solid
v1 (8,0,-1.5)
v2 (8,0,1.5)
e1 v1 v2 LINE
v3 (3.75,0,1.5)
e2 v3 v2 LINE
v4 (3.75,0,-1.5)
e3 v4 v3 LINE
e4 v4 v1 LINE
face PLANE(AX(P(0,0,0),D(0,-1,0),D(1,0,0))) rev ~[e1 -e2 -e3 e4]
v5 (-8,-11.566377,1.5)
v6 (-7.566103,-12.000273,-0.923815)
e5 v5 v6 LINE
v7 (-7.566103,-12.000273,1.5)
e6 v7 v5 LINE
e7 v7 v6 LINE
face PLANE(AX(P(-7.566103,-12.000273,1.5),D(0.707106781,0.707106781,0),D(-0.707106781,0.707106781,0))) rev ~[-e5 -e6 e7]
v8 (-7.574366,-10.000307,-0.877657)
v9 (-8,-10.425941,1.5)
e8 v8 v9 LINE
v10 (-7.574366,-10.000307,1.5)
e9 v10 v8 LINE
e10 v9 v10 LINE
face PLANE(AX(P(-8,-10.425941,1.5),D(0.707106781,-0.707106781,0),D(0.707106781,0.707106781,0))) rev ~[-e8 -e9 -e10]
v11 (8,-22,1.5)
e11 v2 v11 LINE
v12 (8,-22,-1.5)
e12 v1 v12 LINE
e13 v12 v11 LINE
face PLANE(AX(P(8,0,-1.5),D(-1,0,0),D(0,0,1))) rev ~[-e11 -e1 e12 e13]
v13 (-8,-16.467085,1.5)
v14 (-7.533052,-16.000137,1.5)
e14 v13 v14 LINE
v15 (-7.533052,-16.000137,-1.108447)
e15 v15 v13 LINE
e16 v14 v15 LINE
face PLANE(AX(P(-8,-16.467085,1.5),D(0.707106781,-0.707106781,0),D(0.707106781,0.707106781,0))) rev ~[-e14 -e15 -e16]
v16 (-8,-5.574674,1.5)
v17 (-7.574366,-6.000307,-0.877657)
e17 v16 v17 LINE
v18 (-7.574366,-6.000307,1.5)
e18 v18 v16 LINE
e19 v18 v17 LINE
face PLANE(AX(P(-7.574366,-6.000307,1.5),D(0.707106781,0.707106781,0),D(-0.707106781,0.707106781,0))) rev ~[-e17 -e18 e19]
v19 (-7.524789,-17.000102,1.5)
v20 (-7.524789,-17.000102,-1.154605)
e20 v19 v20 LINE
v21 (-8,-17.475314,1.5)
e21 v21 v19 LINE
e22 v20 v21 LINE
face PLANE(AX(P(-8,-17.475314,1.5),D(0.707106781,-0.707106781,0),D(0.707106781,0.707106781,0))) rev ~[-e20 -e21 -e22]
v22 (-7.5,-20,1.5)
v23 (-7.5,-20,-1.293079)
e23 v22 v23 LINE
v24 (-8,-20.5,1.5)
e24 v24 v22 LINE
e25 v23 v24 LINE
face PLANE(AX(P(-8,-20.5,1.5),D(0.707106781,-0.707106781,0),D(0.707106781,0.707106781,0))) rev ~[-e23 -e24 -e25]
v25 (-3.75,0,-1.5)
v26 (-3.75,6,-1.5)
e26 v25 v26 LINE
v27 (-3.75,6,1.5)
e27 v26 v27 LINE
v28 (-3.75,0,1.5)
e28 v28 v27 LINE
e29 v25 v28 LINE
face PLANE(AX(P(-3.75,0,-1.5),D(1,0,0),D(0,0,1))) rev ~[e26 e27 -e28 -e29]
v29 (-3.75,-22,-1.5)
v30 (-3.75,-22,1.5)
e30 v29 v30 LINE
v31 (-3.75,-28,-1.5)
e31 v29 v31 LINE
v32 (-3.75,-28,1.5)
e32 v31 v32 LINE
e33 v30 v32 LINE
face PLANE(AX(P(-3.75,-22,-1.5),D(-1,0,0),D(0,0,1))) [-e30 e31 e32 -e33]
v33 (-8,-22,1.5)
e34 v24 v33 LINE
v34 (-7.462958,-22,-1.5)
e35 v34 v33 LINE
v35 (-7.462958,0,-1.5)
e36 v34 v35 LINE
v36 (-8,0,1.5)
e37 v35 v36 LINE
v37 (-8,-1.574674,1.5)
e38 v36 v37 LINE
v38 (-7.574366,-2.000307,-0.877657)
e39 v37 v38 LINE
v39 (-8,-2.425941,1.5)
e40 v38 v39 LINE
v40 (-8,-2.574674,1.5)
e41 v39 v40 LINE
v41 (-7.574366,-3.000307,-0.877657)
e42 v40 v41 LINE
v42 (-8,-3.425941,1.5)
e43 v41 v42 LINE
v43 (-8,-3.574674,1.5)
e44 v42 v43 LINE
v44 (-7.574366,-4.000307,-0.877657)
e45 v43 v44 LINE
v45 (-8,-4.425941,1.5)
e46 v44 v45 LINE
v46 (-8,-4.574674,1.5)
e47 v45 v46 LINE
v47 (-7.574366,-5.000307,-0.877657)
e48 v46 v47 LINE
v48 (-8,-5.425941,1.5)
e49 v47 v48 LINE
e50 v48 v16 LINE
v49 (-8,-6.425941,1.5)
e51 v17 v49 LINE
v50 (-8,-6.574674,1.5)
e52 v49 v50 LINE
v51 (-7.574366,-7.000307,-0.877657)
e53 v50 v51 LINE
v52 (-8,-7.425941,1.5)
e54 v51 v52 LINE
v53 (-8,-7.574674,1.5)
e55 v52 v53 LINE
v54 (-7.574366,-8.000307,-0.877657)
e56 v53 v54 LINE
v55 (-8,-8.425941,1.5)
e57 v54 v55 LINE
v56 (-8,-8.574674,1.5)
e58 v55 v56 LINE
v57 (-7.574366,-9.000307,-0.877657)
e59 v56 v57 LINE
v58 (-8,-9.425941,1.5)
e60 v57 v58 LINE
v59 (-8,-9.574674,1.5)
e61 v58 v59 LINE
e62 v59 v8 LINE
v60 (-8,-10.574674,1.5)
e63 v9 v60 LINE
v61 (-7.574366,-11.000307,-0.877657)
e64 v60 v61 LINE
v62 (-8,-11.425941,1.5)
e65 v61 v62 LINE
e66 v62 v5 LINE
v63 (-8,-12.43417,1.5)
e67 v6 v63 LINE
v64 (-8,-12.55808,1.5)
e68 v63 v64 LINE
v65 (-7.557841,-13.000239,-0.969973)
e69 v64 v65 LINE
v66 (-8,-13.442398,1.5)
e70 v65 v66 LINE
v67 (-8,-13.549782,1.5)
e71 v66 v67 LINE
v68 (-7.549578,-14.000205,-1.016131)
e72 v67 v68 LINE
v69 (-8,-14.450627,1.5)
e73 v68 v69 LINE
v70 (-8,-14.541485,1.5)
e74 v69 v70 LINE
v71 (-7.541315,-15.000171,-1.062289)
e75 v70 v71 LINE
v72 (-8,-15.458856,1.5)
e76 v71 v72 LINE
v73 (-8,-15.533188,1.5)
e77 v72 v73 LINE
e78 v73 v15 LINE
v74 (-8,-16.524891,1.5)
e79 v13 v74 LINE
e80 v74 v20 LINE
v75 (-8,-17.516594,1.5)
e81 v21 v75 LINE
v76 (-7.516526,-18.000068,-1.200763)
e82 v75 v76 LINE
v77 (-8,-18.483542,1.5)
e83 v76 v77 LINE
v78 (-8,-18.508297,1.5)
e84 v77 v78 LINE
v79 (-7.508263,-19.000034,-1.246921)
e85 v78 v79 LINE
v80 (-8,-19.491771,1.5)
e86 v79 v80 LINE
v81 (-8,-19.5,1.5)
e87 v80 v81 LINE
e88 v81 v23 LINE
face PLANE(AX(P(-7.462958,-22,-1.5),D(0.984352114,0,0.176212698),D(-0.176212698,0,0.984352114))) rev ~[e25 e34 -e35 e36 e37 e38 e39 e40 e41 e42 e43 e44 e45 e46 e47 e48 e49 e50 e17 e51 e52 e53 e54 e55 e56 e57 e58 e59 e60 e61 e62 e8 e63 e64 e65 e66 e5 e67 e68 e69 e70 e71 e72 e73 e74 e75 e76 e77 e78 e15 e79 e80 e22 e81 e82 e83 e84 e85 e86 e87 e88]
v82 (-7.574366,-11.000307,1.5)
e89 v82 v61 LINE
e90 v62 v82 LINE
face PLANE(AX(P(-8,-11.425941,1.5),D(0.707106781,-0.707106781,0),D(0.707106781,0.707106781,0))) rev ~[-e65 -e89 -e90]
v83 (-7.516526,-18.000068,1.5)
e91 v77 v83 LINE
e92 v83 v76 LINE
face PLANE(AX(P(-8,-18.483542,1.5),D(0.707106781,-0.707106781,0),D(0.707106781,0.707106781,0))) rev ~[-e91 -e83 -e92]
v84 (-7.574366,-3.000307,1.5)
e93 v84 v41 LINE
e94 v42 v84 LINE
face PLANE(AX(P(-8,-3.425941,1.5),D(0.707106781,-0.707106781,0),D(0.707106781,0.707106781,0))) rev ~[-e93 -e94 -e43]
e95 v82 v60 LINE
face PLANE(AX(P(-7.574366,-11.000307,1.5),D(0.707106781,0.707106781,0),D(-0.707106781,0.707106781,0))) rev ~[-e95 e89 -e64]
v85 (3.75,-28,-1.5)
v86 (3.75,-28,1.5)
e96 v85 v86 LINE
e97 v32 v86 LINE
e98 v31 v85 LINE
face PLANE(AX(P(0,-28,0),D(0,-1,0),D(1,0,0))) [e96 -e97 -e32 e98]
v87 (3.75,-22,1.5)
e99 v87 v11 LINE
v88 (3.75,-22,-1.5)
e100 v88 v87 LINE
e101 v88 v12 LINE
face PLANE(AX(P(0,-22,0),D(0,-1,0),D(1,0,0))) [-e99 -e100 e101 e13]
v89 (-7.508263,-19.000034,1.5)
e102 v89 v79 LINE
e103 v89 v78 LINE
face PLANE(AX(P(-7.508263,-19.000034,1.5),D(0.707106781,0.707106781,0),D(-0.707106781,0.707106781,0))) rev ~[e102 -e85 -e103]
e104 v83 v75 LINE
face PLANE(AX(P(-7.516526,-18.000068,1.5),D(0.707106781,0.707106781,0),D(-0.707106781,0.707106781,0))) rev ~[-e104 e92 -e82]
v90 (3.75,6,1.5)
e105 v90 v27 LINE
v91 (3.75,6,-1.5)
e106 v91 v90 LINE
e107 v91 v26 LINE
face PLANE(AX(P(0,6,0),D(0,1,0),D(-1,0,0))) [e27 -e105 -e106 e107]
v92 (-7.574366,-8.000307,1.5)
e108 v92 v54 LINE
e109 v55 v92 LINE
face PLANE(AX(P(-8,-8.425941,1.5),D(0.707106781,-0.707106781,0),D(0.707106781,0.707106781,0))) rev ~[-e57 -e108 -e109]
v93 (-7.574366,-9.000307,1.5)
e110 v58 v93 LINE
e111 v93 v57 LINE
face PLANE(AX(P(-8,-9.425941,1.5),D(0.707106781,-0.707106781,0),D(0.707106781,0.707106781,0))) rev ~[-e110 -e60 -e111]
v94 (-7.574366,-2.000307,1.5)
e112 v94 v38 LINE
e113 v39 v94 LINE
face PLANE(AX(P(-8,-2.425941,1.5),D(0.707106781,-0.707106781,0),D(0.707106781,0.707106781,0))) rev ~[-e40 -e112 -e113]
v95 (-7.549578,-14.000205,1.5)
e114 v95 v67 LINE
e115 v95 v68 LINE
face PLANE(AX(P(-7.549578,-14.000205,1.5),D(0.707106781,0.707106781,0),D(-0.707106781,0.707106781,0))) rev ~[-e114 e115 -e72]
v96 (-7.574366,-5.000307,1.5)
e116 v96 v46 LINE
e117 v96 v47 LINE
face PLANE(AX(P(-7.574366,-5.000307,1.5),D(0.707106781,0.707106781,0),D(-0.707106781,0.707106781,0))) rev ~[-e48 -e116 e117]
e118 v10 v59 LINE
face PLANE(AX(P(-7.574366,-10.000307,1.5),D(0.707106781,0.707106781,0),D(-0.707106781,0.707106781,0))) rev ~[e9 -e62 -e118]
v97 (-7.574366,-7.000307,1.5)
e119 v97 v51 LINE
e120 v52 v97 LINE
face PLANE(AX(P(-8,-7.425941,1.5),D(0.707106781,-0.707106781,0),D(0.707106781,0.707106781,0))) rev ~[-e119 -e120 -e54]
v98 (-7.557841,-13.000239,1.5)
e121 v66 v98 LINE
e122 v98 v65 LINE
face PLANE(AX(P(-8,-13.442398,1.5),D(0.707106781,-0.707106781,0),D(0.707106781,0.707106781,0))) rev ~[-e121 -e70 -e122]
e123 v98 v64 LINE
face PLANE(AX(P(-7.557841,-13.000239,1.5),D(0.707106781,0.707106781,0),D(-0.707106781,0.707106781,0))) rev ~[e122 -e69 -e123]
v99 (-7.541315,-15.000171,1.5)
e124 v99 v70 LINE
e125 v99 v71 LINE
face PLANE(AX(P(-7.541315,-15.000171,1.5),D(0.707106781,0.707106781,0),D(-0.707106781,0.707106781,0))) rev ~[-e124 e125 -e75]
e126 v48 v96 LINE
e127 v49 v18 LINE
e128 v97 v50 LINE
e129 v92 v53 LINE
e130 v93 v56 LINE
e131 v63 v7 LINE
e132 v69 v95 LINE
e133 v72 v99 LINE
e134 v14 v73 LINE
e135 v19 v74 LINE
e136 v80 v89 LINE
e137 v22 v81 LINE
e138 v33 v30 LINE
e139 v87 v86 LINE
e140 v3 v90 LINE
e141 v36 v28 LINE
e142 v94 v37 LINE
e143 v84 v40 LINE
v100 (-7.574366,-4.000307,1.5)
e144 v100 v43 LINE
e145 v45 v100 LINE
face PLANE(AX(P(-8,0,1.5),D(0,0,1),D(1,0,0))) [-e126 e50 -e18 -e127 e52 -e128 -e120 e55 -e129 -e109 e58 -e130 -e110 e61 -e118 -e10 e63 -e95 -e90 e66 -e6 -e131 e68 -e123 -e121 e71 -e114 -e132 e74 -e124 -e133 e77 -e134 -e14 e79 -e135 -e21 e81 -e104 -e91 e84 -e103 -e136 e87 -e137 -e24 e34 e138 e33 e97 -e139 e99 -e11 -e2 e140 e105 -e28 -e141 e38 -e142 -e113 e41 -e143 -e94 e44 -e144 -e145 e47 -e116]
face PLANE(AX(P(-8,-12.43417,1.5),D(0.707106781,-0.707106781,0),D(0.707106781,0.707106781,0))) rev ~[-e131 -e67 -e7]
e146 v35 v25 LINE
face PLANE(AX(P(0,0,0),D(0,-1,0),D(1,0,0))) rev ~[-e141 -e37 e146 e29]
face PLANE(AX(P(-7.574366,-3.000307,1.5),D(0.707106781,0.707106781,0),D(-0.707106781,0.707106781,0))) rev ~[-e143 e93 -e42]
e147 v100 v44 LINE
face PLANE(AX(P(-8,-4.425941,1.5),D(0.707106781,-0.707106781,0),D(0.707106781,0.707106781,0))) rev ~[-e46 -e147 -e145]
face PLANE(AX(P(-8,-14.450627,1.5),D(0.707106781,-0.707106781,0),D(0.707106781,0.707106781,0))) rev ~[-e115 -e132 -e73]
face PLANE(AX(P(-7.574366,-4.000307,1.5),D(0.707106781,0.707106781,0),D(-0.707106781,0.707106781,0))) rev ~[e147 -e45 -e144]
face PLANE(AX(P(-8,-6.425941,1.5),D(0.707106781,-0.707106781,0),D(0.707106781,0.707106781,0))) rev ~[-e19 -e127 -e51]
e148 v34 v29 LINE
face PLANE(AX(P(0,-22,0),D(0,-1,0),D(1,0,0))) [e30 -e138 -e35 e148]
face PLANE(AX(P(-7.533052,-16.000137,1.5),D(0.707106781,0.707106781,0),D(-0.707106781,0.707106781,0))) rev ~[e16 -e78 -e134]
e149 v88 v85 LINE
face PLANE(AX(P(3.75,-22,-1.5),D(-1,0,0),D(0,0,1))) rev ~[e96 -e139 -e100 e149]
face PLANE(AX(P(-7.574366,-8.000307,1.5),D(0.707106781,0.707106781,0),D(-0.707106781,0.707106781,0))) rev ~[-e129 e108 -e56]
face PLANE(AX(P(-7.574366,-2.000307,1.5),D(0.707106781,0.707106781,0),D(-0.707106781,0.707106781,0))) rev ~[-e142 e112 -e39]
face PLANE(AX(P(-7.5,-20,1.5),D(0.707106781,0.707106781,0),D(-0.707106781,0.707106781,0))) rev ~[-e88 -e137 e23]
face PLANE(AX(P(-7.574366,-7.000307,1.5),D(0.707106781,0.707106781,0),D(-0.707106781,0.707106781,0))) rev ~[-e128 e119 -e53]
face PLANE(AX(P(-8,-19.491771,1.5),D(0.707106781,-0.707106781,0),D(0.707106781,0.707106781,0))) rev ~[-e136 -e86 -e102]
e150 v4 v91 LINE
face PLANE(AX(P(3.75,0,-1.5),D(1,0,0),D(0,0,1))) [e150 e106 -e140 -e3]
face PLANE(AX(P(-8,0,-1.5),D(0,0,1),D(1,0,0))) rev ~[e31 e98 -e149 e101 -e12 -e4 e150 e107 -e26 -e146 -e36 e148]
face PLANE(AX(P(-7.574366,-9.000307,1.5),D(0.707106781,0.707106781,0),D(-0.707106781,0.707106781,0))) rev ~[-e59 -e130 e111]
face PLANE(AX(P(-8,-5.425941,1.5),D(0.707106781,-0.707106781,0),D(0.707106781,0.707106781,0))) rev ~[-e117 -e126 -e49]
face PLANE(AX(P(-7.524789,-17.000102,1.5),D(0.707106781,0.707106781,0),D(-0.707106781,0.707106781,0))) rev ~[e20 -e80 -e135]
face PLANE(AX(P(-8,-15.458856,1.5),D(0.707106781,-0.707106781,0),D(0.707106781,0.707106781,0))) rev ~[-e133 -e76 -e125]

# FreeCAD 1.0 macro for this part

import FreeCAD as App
import Part
import Sketcher
from FreeCAD import Vector
Q = App.Units.Quantity


def add_polygon(sketch, points):
    """Adds a closed chain of lines whose ends are joined by coincident constraints."""
    first, n = sketch.GeometryCount, len(points)
    for a, b in zip(points, points[1:] + points[:1]):
        sketch.addGeometry(Part.LineSegment(App.Vector(*a, 0), App.Vector(*b, 0)), False)
    for i in range(n):
        sketch.addConstraint(Sketcher.Constraint("Coincident", first + i, 2, first + (i + 1) % n, 1))

doc = App.newDocument("Part")
body = doc.addObject("PartDesign::Body", "Body")

sketch1 = doc.addObject("Sketcher::SketchObject", "Sketch")
body.addObject(sketch1)
sketch1.AttachmentSupport = (doc.XZ_Plane, [""])
sketch1.MapMode = "FlatFace"
add_polygon(sketch1, [(-8, 1.5), (-8, -1.5), (8, -1.5), (8, 1.5)])
sketch1.addConstraint([
    Sketcher.Constraint("Vertical", 0),
    Sketcher.Constraint("Horizontal", 1),
    Sketcher.Constraint("Vertical", 2),
    Sketcher.Constraint("Horizontal", 3),
    Sketcher.Constraint("Symmetric", 0, 2, 2, 2, -1, 1),
    Sketcher.Constraint("DistanceX", 1, 1, 1, 2, Q("16 mm")),
    Sketcher.Constraint("DistanceY", 0, 2, 0, 1, Q("3 mm")),
])
pad1 = doc.addObject("PartDesign::Pad", "Pad")
body.addObject(pad1)
pad1.Profile = sketch1
pad1.Length = 22

sketch2 = doc.addObject("Sketcher::SketchObject", "Sketch001")
body.addObject(sketch2)
sketch2.AttachmentSupport = (doc.XZ_Plane, [""])
sketch2.MapMode = "FlatFace"
sketch2.AttachmentOffset = App.Placement(Vector(0, 0, 22), App.Rotation())
add_polygon(sketch2, [(-3.8, 1.5), (-3.8, -1.5), (3.8, -1.5), (3.8, 1.5)])
sketch2.addConstraint([
    Sketcher.Constraint("Vertical", 0),
    Sketcher.Constraint("Horizontal", 1),
    Sketcher.Constraint("Vertical", 2),
    Sketcher.Constraint("Horizontal", 3),
    Sketcher.Constraint("Symmetric", 0, 2, 2, 2, -1, 1),
    Sketcher.Constraint("DistanceY", 0, 2, 0, 1, Q("3 mm")),
    Sketcher.Constraint("DistanceX", 1, 1, 1, 2, Q("7.5 mm")),
])
pad2 = doc.addObject("PartDesign::Pad", "Pad001")
body.addObject(pad2)
pad2.Profile = sketch2
pad2.Length = 6

sketch3 = doc.addObject("Sketcher::SketchObject", "Sketch002")
body.addObject(sketch3)
sketch3.AttachmentSupport = (doc.XZ_Plane, [""])
sketch3.MapMode = "FlatFace"
add_polygon(sketch3, [(3.8, 1.5), (3.8, -1.5), (-3.8, -1.5), (-3.8, 1.5)])
sketch3.addConstraint([
    Sketcher.Constraint("Vertical", 0),
    Sketcher.Constraint("Horizontal", 1),
    Sketcher.Constraint("Vertical", 2),
    Sketcher.Constraint("Horizontal", 3),
    Sketcher.Constraint("Symmetric", 0, 2, 2, 2, -1, 1),
    Sketcher.Constraint("DistanceY", 0, 2, 0, 1, Q("3 mm")),
    Sketcher.Constraint("DistanceX", 1, 2, 1, 1, Q("7.5 mm")),
])
pad3 = doc.addObject("PartDesign::Pad", "Pad002")
body.addObject(pad3)
pad3.Profile = sketch3
pad3.Length = 6
pad3.Reversed = True

sketch4 = doc.addObject("Sketcher::SketchObject", "Sketch003")
body.addObject(sketch4)
sketch4.AttachmentSupport = (doc.XY_Plane, [""])
sketch4.MapMode = "FlatFace"
sketch4.AttachmentOffset = App.Placement(Vector(0, 0, 1.5), App.Rotation())
add_polygon(sketch4, [(-8, -1.6), (-8, -2.4), (-7.6, -2)])
add_polygon(sketch4, [(-8, -2.6), (-8, -3.4), (-7.6, -3)])
add_polygon(sketch4, [(-8, -3.6), (-8, -4.4), (-7.6, -4)])
add_polygon(sketch4, [(-8, -4.6), (-8, -5.4), (-7.6, -5)])
add_polygon(sketch4, [(-8, -5.6), (-8, -6.4), (-7.6, -6)])
add_polygon(sketch4, [(-8, -6.6), (-8, -7.4), (-7.6, -7)])
add_polygon(sketch4, [(-8, -7.6), (-8, -8.4), (-7.6, -8)])
add_polygon(sketch4, [(-8, -8.6), (-8, -9.4), (-7.6, -9)])
add_polygon(sketch4, [(-8, -9.6), (-8, -10.4), (-7.6, -10)])
add_polygon(sketch4, [(-7.6, -11), (-8, -10.6), (-8, -11.4)])
add_polygon(sketch4, [(-7.6, -12), (-8, -11.6), (-8, -12.4)])
add_polygon(sketch4, [(-7.6, -13), (-8, -12.6), (-8, -13.4)])
add_polygon(sketch4, [(-7.5, -14), (-8, -13.5), (-8, -14.5)])
add_polygon(sketch4, [(-7.5, -15), (-8, -14.5), (-8, -15.5)])
add_polygon(sketch4, [(-7.5, -20), (-8, -19.5), (-8, -20.5)])
add_polygon(sketch4, [(-7.5, -19), (-8, -18.5), (-8, -19.5)])
add_polygon(sketch4, [(-7.5, -18), (-8, -17.5), (-8, -18.5)])
add_polygon(sketch4, [(-7.5, -17), (-8, -16.5), (-8, -17.5)])
add_polygon(sketch4, [(-7.5, -16), (-8, -15.5), (-8, -16.5)])
sketch4.addConstraint([
    Sketcher.Constraint("Vertical", 0),
    Sketcher.Constraint("Vertical", 3),
    Sketcher.Constraint("Vertical", 6),
    Sketcher.Constraint("Vertical", 9),
    Sketcher.Constraint("Vertical", 12),
    Sketcher.Constraint("Vertical", 15),
    Sketcher.Constraint("Vertical", 18),
    Sketcher.Constraint("Vertical", 21),
    Sketcher.Constraint("Vertical", 24),
    Sketcher.Constraint("Vertical", 28),
    Sketcher.Constraint("Vertical", 31),
    Sketcher.Constraint("Vertical", 34),
    Sketcher.Constraint("Vertical", 37),
    Sketcher.Constraint("Vertical", 40),
    Sketcher.Constraint("Vertical", 43),
    Sketcher.Constraint("Vertical", 46),
    Sketcher.Constraint("Vertical", 49),
    Sketcher.Constraint("Vertical", 52),
    Sketcher.Constraint("Vertical", 55),
    Sketcher.Constraint("Perpendicular", 1, 2),
    Sketcher.Constraint("Perpendicular", 2, 4),
    Sketcher.Constraint("Perpendicular", 4, 5),
    Sketcher.Constraint("Perpendicular", 5, 7),
    Sketcher.Constraint("Perpendicular", 7, 8),
    Sketcher.Constraint("Perpendicular", 8, 10),
    Sketcher.Constraint("Perpendicular", 10, 11),
    Sketcher.Constraint("Perpendicular", 11, 13),
    Sketcher.Constraint("Perpendicular", 13, 14),
    Sketcher.Constraint("Perpendicular", 14, 16),
    Sketcher.Constraint("Perpendicular", 16, 17),
    Sketcher.Constraint("Perpendicular", 17, 19),
    Sketcher.Constraint("Perpendicular", 19, 20),
    Sketcher.Constraint("Perpendicular", 20, 22),
    Sketcher.Constraint("Perpendicular", 22, 23),
    Sketcher.Constraint("Perpendicular", 23, 25),
    Sketcher.Constraint("Perpendicular", 25, 26),
    Sketcher.Constraint("Parallel", 26, 27),
    Sketcher.Constraint("Perpendicular", 27, 29),
    Sketcher.Constraint("Perpendicular", 29, 30),
    Sketcher.Constraint("Perpendicular", 30, 32),
    Sketcher.Constraint("Perpendicular", 32, 33),
    Sketcher.Constraint("Perpendicular", 33, 35),
    Sketcher.Constraint("Perpendicular", 35, 36),
    Sketcher.Constraint("Perpendicular", 36, 38),
    Sketcher.Constraint("Perpendicular", 38, 39),
    Sketcher.Constraint("Perpendicular", 39, 41),
    Sketcher.Constraint("Perpendicular", 41, 42),
    Sketcher.Constraint("Perpendicular", 42, 44),
    Sketcher.Constraint("Perpendicular", 44, 45),
    Sketcher.Constraint("Perpendicular", 45, 47),
    Sketcher.Constraint("Perpendicular", 47, 48),
    Sketcher.Constraint("Perpendicular", 48, 50),
    Sketcher.Constraint("Perpendicular", 50, 51),
    Sketcher.Constraint("Perpendicular", 51, 53),
    Sketcher.Constraint("Perpendicular", 53, 54),
    Sketcher.Constraint("Perpendicular", 54, 56),
    Sketcher.Constraint("Vertical", 2, 2, 3, 2),
    Sketcher.Constraint("Vertical", 1, 2, 4, 2),
    Sketcher.Constraint("Vertical", 5, 2, 6, 2),
    Sketcher.Constraint("Vertical", 4, 2, 7, 2),
    Sketcher.Constraint("Vertical", 8, 2, 9, 2),
    Sketcher.Constraint("Vertical", 7, 2, 10, 2),
    Sketcher.Constraint("Vertical", 11, 2, 12, 2),
    Sketcher.Constraint("Vertical", 10, 2, 13, 2),
    Sketcher.Constraint("Vertical", 14, 2, 15, 2),
    Sketcher.Constraint("Vertical", 13, 2, 16, 2),
    Sketcher.Constraint("Vertical", 17, 2, 18, 2),
    Sketcher.Constraint("Vertical", 16, 2, 19, 2),
    Sketcher.Constraint("Vertical", 20, 2, 21, 2),
    Sketcher.Constraint("Vertical", 19, 2, 22, 2),
    Sketcher.Constraint("Vertical", 23, 2, 24, 2),
    Sketcher.Constraint("Vertical", 22, 2, 25, 2),
    Sketcher.Constraint("Vertical", 26, 2, 27, 2),
    Sketcher.Constraint("Vertical", 25, 2, 29, 2),
    Sketcher.Constraint("Vertical", 28, 2, 30, 2),
    Sketcher.Constraint("Vertical", 31, 2, 33, 2),
    Sketcher.Constraint("Vertical", 34, 2, 36, 2),
    Sketcher.Constraint("Vertical", 37, 2, 39, 2),
    Sketcher.Constraint("Vertical", 40, 2, 42, 2),
    Sketcher.Constraint("Vertical", 43, 2, 45, 2),
    Sketcher.Constraint("Vertical", 46, 2, 48, 2),
    Sketcher.Constraint("Vertical", 49, 2, 51, 2),
    Sketcher.Constraint("Vertical", 52, 2, 54, 2),
    Sketcher.Constraint("Equal", 1, 2),
    Sketcher.Constraint("DistanceY", 43, 2, 43, 1, Q("1 mm")),
    Sketcher.Constraint("DistanceX", 0, 2, -1, 1, Q("8 mm")),
    Sketcher.Constraint("DistanceY", 44, 2, -1, 1, Q("20 mm")),
    Sketcher.Constraint("DistanceY", 3, 2, 0, 2, Q("1 mm")),
    Sketcher.Constraint("DistanceY", 6, 2, 3, 2, Q("1 mm")),
    Sketcher.Constraint("DistanceY", 9, 2, 6, 2, Q("1 mm")),
    Sketcher.Constraint("DistanceY", 12, 2, 9, 2, Q("1 mm")),
    Sketcher.Constraint("DistanceY", 15, 2, 12, 2, Q("1 mm")),
    Sketcher.Constraint("DistanceY", 18, 2, 15, 2, Q("1 mm")),
    Sketcher.Constraint("DistanceY", 21, 2, 18, 2, Q("1 mm")),
    Sketcher.Constraint("DistanceY", 24, 2, 21, 2, Q("1 mm")),
    Sketcher.Constraint("DistanceY", 27, 2, 26, 2, Q("1 mm")),
    Sketcher.Constraint("DistanceY", 34, 2, 34, 1, Q("0.884319 mm")),
    Sketcher.Constraint("DistanceY", 40, 2, 40, 1, Q("0.917371 mm")),
    Sketcher.Constraint("DistanceY", 49, 2, 49, 1, Q("0.966948 mm")),
    Sketcher.Constraint("DistanceY", 34, 2, -1, 1, Q("13.442398 mm")),
    Sketcher.Constraint("DistanceY", 32, 2, 27, 2, Q("1.425599 mm")),
    Sketcher.Constraint("Distance", 45, Q("0.695421 mm")),
    Sketcher.Constraint("Distance", 51, Q("0.67205 mm")),
    Sketcher.Constraint("DistanceY", 0, 2, 0, 1, Q("0.851267 mm")),
    Sketcher.Constraint("DistanceY", 31, 2, 31, 1, Q("0.867793 mm")),
    Sketcher.Constraint("DistanceY", 37, 2, 37, 1, Q("0.900845 mm")),
    Sketcher.Constraint("DistanceY", 55, 2, 55, 1, Q("0.933897 mm")),
    Sketcher.Constraint("DistanceY", 0, 2, -1, 1, Q("2.425941 mm")),
    Sketcher.Constraint("DistanceY", 41, 2, -1, 1, Q("15.000171 mm")),
    Sketcher.Constraint("DistanceY", 46, 2, -1, 1, Q("19.491771 mm")),
    Sketcher.Constraint("DistanceY", 50, 2, -1, 1, Q("18.000068 mm")),
    Sketcher.Constraint("DistanceY", 51, 2, -1, 1, Q("16.524891 mm")),
    Sketcher.Constraint("DistanceY", 54, 2, -1, 1, Q("15.533188 mm")),
    Sketcher.Constraint("DistanceY", 36, 2, 32, 2, Q("1.549509 mm")),
])
pocket1 = doc.addObject("PartDesign::Pocket", "Pocket")
body.addObject(pocket1)
pocket1.Profile = sketch4
pocket1.Type = "ThroughAll"

sketch5 = doc.addObject("Sketcher::SketchObject", "Sketch004")
body.addObject(sketch5)
sketch5.AttachmentSupport = (doc.XZ_Plane, [""])
sketch5.MapMode = "FlatFace"
sketch5.AttachmentOffset = App.Placement(Vector(0, 0, 22), App.Rotation())
add_polygon(sketch5, [(-7.5, -1.5), (-8, 1.5), (-8, -1.5)])
sketch5.addConstraint([
    Sketcher.Constraint("Vertical", 1),
    Sketcher.Constraint("Horizontal", 2),
    Sketcher.Constraint("DistanceY", 1, 2, 1, 1, Q("3 mm")),
    Sketcher.Constraint("DistanceX", 0, 2, -1, 1, Q("8 mm")),
    Sketcher.Constraint("DistanceY", -1, 1, 0, 2, Q("1.5 mm")),
    Sketcher.Constraint("DistanceX", 2, 1, 2, 2, Q("0.537042 mm")),
])
pocket2 = doc.addObject("PartDesign::Pocket", "Pocket001")
body.addObject(pocket2)
pocket2.Profile = sketch5
pocket2.Type = "ThroughAll"

doc.recompute()
